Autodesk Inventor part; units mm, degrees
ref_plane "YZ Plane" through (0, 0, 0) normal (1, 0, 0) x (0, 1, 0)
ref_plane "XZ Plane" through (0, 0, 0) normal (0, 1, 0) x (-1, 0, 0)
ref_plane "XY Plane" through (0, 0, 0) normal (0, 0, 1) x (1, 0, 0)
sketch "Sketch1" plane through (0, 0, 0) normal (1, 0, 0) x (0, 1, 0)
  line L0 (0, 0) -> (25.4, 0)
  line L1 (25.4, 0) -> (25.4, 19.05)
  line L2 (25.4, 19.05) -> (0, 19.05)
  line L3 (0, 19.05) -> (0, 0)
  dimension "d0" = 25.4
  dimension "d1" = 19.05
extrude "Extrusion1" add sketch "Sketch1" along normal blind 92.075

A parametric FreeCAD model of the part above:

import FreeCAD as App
import Part
import Sketcher
from FreeCAD import Vector
Q = App.Units.Quantity

doc = App.newDocument("Part")
params = doc.addObject("Spreadsheet::Sheet", "Params")
for row, (alias, value) in enumerate([
    ("sketch1_width", "1 in"),
    ("sketch1_height", "0.75 in"),
    ("pad1_length", "3.625 in"),
], start=1):
    params.set(f"A{row}", alias)
    params.set(f"B{row}", "=" + value)
    params.setAlias(f"B{row}", alias)

body = doc.addObject("PartDesign::Body", "Body")

# Sketch on YZ plane
sketch1 = body.newObject("Sketcher::SketchObject", "Sketch")
sketch1.AttachmentSupport = (doc.getObject("YZ_Plane"), [""])
sketch1.MapMode = "FlatFace"
sketch1.addGeometry([
    Part.LineSegment(Vector(0, 19, 0), Vector(0, 0, 0)),
    Part.LineSegment(Vector(0, 0, 0), Vector(25, 0, 0)),
    Part.LineSegment(Vector(25, 0, 0), Vector(25, 19, 0)),
    Part.LineSegment(Vector(25, 19, 0), Vector(0, 19, 0)),
], False)
sketch1.addConstraint([
    Sketcher.Constraint("Coincident", 0, 2, 1, 1),
    Sketcher.Constraint("Coincident", 1, 2, 2, 1),
    Sketcher.Constraint("Coincident", 2, 2, 3, 1),
    Sketcher.Constraint("Coincident", 3, 2, 0, 1),
    Sketcher.Constraint("Vertical", 0),
    Sketcher.Constraint("Horizontal", 1),
    Sketcher.Constraint("Vertical", 2),
    Sketcher.Constraint("Horizontal", 3),
    Sketcher.Constraint("Coincident", 0, 2, -1, 1),
    Sketcher.Constraint("DistanceX", 1, 1, 1, 2, Q("1 in")),
    Sketcher.Constraint("DistanceY", 0, 2, 0, 1, Q("0.75 in")),
])
sketch1.setExpression("Constraints[9]", "Params.sketch1_width")
sketch1.setExpression("Constraints[10]", "Params.sketch1_height")
pad1 = body.newObject("PartDesign::Pad", "Pad")
pad1.Profile = sketch1
pad1.setExpression("Length", "Params.pad1_length")

doc.recompute()
